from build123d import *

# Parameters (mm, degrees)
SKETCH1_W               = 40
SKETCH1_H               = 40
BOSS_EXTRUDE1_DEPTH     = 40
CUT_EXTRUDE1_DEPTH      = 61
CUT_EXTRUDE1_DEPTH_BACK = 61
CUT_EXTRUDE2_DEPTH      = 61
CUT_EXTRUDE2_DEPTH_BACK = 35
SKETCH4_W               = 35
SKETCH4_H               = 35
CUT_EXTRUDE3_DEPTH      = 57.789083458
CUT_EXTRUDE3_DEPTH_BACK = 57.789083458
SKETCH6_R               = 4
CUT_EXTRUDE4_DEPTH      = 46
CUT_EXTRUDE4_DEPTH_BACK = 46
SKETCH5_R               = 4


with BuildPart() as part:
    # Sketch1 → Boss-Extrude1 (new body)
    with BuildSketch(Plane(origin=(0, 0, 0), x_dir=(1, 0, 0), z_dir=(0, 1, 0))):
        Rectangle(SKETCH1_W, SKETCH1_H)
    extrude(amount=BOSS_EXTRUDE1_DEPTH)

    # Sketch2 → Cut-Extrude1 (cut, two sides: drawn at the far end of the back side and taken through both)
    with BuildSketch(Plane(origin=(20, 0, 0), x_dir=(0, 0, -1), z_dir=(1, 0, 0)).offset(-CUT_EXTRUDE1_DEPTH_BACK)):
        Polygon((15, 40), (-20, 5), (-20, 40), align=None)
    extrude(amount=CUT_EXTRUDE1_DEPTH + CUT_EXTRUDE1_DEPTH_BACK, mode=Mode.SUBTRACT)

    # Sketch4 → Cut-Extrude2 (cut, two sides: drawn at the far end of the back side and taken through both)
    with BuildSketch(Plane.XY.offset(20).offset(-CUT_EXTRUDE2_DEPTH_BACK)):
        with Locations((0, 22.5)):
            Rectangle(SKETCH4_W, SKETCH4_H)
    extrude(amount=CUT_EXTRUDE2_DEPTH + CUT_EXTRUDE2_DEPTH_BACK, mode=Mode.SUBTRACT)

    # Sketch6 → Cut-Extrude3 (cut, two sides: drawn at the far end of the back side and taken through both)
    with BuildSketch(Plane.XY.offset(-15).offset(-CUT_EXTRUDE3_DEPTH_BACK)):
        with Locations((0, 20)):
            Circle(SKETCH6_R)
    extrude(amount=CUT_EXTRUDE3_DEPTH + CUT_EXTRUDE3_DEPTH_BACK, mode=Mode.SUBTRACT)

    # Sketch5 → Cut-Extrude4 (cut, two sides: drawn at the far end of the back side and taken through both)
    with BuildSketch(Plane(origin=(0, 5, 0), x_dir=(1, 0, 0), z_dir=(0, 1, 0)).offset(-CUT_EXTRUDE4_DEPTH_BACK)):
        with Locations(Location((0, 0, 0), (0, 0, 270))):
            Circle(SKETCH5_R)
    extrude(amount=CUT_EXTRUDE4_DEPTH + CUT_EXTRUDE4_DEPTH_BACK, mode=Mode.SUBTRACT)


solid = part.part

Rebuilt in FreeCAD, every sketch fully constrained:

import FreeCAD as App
import Part
import Sketcher

V = App.Vector
Q = App.Units.Quantity


def add_polygon(sketch, points):
    """Adds a closed chain of lines whose ends are joined by coincident constraints."""
    first, n = sketch.GeometryCount, len(points)
    for a, b in zip(points, points[1:] + points[:1]):
        sketch.addGeometry(Part.LineSegment(App.Vector(*a, 0), App.Vector(*b, 0)), False)
    for i in range(n):
        sketch.addConstraint(Sketcher.Constraint("Coincident", first + i, 2, first + (i + 1) % n, 1))

doc = App.newDocument("Part")
body = doc.addObject("PartDesign::Body", "Body")

sketch1 = body.newObject("Sketcher::SketchObject", "Sketch")
sketch1.AttachmentSupport = (doc.getObject("XZ_Plane"), [""])
sketch1.MapMode = "FlatFace"
add_polygon(sketch1, [(-20, -20), (-20, 20), (20, 20), (20, -20)])
sketch1.addConstraint([
    Sketcher.Constraint("Vertical", 0),
    Sketcher.Constraint("Horizontal", 1),
    Sketcher.Constraint("Vertical", 2),
    Sketcher.Constraint("Horizontal", 3),
    Sketcher.Constraint("Symmetric", 0, 2, 2, 2, -1, 1),
    Sketcher.Constraint("Equal", 3, 0),
    Sketcher.Constraint("DistanceX", 1, 1, 1, 2, Q("40 mm")),
])
pad1 = body.newObject("PartDesign::Pad", "Pad")
pad1.Profile = sketch1
pad1.Length = 40
pad1.Reversed = True

sketch2 = body.newObject("Sketcher::SketchObject", "Sketch001")
sketch2.AttachmentSupport = (doc.getObject("YZ_Plane"), [""])
sketch2.MapMode = "FlatFace"
sketch2.AttachmentOffset = App.Placement(V(0, 0, 20), App.Rotation())
add_polygon(sketch2, [(5, 20), (40, -15), (40, 20)])
sketch2.addConstraint([
    Sketcher.Constraint("Vertical", 1),
    Sketcher.Constraint("Horizontal", 2),
    Sketcher.Constraint("Equal", 2, 1),
    Sketcher.Constraint("DistanceX", 2, 2, 2, 1, Q("35 mm")),
    Sketcher.Constraint("DistanceX", -1, 1, 0, 2, Q("40 mm")),
    Sketcher.Constraint("DistanceY", 0, 2, -1, 1, Q("15 mm")),
])
pocket1 = body.newObject("PartDesign::Pocket", "Pocket")
pocket1.Profile = sketch2
pocket1.Type = "ThroughAll"
pocket1.Midplane = True

sketch3 = body.newObject("Sketcher::SketchObject", "Sketch002")
sketch3.AttachmentSupport = (doc.getObject("XY_Plane"), [""])
sketch3.MapMode = "FlatFace"
sketch3.AttachmentOffset = App.Placement(V(0, 0, 20), App.Rotation())
add_polygon(sketch3, [(-18, 40), (-18, 5), (18, 5), (18, 40)])
sketch3.addConstraint([
    Sketcher.Constraint("Vertical", 0),
    Sketcher.Constraint("Horizontal", 1),
    Sketcher.Constraint("Vertical", 2),
    Sketcher.Constraint("Horizontal", 3),
    Sketcher.Constraint("Equal", 3, 0),
    Sketcher.Constraint("DistanceX", 1, 1, 1, 2, Q("35 mm")),
    Sketcher.Constraint("DistanceY", -1, 1, 0, 2, Q("5 mm")),
    Sketcher.Constraint("DistanceX", 0, 2, -1, 1, Q("17.5 mm")),
])
pocket2 = body.newObject("PartDesign::Pocket", "Pocket001")
pocket2.Profile = sketch3
pocket2.Type = "TwoLengths"
pocket2.Length = 61
pocket2.Length2 = 35
pocket2.Reversed = True

sketch4 = body.newObject("Sketcher::SketchObject", "Sketch003")
sketch4.AttachmentSupport = (doc.getObject("XY_Plane"), [""])
sketch4.MapMode = "FlatFace"
sketch4.AttachmentOffset = App.Placement(V(0, 0, -15), App.Rotation())
sketch4.addGeometry(Part.Circle(V(0, 20, 0), V(0, 0, 1), 4), False)
sketch4.addConstraint([
    Sketcher.Constraint("PointOnObject", 0, 3, -2),
    Sketcher.Constraint("Diameter", 0, Q("8 mm")),
    Sketcher.Constraint("DistanceY", -1, 1, 0, 3, Q("20 mm")),
])
pocket3 = body.newObject("PartDesign::Pocket", "Pocket002")
pocket3.Profile = sketch4
pocket3.Type = "ThroughAll"
pocket3.Midplane = True

sketch5 = body.newObject("Sketcher::SketchObject", "Sketch004")
sketch5.AttachmentSupport = (doc.getObject("XZ_Plane"), [""])
sketch5.MapMode = "FlatFace"
sketch5.AttachmentOffset = App.Placement(V(0, 0, -5), App.Rotation())
sketch5.addGeometry(Part.Circle(V(0, 0, 0), V(0, 0, 1), 4), False)
sketch5.addConstraint([
    Sketcher.Constraint("Coincident", 0, 3, -1, 1),
    Sketcher.Constraint("Diameter", 0, Q("8 mm")),
])
pocket4 = body.newObject("PartDesign::Pocket", "Pocket003")
pocket4.Profile = sketch5
pocket4.Type = "ThroughAll"
pocket4.Midplane = True

doc.recompute()
